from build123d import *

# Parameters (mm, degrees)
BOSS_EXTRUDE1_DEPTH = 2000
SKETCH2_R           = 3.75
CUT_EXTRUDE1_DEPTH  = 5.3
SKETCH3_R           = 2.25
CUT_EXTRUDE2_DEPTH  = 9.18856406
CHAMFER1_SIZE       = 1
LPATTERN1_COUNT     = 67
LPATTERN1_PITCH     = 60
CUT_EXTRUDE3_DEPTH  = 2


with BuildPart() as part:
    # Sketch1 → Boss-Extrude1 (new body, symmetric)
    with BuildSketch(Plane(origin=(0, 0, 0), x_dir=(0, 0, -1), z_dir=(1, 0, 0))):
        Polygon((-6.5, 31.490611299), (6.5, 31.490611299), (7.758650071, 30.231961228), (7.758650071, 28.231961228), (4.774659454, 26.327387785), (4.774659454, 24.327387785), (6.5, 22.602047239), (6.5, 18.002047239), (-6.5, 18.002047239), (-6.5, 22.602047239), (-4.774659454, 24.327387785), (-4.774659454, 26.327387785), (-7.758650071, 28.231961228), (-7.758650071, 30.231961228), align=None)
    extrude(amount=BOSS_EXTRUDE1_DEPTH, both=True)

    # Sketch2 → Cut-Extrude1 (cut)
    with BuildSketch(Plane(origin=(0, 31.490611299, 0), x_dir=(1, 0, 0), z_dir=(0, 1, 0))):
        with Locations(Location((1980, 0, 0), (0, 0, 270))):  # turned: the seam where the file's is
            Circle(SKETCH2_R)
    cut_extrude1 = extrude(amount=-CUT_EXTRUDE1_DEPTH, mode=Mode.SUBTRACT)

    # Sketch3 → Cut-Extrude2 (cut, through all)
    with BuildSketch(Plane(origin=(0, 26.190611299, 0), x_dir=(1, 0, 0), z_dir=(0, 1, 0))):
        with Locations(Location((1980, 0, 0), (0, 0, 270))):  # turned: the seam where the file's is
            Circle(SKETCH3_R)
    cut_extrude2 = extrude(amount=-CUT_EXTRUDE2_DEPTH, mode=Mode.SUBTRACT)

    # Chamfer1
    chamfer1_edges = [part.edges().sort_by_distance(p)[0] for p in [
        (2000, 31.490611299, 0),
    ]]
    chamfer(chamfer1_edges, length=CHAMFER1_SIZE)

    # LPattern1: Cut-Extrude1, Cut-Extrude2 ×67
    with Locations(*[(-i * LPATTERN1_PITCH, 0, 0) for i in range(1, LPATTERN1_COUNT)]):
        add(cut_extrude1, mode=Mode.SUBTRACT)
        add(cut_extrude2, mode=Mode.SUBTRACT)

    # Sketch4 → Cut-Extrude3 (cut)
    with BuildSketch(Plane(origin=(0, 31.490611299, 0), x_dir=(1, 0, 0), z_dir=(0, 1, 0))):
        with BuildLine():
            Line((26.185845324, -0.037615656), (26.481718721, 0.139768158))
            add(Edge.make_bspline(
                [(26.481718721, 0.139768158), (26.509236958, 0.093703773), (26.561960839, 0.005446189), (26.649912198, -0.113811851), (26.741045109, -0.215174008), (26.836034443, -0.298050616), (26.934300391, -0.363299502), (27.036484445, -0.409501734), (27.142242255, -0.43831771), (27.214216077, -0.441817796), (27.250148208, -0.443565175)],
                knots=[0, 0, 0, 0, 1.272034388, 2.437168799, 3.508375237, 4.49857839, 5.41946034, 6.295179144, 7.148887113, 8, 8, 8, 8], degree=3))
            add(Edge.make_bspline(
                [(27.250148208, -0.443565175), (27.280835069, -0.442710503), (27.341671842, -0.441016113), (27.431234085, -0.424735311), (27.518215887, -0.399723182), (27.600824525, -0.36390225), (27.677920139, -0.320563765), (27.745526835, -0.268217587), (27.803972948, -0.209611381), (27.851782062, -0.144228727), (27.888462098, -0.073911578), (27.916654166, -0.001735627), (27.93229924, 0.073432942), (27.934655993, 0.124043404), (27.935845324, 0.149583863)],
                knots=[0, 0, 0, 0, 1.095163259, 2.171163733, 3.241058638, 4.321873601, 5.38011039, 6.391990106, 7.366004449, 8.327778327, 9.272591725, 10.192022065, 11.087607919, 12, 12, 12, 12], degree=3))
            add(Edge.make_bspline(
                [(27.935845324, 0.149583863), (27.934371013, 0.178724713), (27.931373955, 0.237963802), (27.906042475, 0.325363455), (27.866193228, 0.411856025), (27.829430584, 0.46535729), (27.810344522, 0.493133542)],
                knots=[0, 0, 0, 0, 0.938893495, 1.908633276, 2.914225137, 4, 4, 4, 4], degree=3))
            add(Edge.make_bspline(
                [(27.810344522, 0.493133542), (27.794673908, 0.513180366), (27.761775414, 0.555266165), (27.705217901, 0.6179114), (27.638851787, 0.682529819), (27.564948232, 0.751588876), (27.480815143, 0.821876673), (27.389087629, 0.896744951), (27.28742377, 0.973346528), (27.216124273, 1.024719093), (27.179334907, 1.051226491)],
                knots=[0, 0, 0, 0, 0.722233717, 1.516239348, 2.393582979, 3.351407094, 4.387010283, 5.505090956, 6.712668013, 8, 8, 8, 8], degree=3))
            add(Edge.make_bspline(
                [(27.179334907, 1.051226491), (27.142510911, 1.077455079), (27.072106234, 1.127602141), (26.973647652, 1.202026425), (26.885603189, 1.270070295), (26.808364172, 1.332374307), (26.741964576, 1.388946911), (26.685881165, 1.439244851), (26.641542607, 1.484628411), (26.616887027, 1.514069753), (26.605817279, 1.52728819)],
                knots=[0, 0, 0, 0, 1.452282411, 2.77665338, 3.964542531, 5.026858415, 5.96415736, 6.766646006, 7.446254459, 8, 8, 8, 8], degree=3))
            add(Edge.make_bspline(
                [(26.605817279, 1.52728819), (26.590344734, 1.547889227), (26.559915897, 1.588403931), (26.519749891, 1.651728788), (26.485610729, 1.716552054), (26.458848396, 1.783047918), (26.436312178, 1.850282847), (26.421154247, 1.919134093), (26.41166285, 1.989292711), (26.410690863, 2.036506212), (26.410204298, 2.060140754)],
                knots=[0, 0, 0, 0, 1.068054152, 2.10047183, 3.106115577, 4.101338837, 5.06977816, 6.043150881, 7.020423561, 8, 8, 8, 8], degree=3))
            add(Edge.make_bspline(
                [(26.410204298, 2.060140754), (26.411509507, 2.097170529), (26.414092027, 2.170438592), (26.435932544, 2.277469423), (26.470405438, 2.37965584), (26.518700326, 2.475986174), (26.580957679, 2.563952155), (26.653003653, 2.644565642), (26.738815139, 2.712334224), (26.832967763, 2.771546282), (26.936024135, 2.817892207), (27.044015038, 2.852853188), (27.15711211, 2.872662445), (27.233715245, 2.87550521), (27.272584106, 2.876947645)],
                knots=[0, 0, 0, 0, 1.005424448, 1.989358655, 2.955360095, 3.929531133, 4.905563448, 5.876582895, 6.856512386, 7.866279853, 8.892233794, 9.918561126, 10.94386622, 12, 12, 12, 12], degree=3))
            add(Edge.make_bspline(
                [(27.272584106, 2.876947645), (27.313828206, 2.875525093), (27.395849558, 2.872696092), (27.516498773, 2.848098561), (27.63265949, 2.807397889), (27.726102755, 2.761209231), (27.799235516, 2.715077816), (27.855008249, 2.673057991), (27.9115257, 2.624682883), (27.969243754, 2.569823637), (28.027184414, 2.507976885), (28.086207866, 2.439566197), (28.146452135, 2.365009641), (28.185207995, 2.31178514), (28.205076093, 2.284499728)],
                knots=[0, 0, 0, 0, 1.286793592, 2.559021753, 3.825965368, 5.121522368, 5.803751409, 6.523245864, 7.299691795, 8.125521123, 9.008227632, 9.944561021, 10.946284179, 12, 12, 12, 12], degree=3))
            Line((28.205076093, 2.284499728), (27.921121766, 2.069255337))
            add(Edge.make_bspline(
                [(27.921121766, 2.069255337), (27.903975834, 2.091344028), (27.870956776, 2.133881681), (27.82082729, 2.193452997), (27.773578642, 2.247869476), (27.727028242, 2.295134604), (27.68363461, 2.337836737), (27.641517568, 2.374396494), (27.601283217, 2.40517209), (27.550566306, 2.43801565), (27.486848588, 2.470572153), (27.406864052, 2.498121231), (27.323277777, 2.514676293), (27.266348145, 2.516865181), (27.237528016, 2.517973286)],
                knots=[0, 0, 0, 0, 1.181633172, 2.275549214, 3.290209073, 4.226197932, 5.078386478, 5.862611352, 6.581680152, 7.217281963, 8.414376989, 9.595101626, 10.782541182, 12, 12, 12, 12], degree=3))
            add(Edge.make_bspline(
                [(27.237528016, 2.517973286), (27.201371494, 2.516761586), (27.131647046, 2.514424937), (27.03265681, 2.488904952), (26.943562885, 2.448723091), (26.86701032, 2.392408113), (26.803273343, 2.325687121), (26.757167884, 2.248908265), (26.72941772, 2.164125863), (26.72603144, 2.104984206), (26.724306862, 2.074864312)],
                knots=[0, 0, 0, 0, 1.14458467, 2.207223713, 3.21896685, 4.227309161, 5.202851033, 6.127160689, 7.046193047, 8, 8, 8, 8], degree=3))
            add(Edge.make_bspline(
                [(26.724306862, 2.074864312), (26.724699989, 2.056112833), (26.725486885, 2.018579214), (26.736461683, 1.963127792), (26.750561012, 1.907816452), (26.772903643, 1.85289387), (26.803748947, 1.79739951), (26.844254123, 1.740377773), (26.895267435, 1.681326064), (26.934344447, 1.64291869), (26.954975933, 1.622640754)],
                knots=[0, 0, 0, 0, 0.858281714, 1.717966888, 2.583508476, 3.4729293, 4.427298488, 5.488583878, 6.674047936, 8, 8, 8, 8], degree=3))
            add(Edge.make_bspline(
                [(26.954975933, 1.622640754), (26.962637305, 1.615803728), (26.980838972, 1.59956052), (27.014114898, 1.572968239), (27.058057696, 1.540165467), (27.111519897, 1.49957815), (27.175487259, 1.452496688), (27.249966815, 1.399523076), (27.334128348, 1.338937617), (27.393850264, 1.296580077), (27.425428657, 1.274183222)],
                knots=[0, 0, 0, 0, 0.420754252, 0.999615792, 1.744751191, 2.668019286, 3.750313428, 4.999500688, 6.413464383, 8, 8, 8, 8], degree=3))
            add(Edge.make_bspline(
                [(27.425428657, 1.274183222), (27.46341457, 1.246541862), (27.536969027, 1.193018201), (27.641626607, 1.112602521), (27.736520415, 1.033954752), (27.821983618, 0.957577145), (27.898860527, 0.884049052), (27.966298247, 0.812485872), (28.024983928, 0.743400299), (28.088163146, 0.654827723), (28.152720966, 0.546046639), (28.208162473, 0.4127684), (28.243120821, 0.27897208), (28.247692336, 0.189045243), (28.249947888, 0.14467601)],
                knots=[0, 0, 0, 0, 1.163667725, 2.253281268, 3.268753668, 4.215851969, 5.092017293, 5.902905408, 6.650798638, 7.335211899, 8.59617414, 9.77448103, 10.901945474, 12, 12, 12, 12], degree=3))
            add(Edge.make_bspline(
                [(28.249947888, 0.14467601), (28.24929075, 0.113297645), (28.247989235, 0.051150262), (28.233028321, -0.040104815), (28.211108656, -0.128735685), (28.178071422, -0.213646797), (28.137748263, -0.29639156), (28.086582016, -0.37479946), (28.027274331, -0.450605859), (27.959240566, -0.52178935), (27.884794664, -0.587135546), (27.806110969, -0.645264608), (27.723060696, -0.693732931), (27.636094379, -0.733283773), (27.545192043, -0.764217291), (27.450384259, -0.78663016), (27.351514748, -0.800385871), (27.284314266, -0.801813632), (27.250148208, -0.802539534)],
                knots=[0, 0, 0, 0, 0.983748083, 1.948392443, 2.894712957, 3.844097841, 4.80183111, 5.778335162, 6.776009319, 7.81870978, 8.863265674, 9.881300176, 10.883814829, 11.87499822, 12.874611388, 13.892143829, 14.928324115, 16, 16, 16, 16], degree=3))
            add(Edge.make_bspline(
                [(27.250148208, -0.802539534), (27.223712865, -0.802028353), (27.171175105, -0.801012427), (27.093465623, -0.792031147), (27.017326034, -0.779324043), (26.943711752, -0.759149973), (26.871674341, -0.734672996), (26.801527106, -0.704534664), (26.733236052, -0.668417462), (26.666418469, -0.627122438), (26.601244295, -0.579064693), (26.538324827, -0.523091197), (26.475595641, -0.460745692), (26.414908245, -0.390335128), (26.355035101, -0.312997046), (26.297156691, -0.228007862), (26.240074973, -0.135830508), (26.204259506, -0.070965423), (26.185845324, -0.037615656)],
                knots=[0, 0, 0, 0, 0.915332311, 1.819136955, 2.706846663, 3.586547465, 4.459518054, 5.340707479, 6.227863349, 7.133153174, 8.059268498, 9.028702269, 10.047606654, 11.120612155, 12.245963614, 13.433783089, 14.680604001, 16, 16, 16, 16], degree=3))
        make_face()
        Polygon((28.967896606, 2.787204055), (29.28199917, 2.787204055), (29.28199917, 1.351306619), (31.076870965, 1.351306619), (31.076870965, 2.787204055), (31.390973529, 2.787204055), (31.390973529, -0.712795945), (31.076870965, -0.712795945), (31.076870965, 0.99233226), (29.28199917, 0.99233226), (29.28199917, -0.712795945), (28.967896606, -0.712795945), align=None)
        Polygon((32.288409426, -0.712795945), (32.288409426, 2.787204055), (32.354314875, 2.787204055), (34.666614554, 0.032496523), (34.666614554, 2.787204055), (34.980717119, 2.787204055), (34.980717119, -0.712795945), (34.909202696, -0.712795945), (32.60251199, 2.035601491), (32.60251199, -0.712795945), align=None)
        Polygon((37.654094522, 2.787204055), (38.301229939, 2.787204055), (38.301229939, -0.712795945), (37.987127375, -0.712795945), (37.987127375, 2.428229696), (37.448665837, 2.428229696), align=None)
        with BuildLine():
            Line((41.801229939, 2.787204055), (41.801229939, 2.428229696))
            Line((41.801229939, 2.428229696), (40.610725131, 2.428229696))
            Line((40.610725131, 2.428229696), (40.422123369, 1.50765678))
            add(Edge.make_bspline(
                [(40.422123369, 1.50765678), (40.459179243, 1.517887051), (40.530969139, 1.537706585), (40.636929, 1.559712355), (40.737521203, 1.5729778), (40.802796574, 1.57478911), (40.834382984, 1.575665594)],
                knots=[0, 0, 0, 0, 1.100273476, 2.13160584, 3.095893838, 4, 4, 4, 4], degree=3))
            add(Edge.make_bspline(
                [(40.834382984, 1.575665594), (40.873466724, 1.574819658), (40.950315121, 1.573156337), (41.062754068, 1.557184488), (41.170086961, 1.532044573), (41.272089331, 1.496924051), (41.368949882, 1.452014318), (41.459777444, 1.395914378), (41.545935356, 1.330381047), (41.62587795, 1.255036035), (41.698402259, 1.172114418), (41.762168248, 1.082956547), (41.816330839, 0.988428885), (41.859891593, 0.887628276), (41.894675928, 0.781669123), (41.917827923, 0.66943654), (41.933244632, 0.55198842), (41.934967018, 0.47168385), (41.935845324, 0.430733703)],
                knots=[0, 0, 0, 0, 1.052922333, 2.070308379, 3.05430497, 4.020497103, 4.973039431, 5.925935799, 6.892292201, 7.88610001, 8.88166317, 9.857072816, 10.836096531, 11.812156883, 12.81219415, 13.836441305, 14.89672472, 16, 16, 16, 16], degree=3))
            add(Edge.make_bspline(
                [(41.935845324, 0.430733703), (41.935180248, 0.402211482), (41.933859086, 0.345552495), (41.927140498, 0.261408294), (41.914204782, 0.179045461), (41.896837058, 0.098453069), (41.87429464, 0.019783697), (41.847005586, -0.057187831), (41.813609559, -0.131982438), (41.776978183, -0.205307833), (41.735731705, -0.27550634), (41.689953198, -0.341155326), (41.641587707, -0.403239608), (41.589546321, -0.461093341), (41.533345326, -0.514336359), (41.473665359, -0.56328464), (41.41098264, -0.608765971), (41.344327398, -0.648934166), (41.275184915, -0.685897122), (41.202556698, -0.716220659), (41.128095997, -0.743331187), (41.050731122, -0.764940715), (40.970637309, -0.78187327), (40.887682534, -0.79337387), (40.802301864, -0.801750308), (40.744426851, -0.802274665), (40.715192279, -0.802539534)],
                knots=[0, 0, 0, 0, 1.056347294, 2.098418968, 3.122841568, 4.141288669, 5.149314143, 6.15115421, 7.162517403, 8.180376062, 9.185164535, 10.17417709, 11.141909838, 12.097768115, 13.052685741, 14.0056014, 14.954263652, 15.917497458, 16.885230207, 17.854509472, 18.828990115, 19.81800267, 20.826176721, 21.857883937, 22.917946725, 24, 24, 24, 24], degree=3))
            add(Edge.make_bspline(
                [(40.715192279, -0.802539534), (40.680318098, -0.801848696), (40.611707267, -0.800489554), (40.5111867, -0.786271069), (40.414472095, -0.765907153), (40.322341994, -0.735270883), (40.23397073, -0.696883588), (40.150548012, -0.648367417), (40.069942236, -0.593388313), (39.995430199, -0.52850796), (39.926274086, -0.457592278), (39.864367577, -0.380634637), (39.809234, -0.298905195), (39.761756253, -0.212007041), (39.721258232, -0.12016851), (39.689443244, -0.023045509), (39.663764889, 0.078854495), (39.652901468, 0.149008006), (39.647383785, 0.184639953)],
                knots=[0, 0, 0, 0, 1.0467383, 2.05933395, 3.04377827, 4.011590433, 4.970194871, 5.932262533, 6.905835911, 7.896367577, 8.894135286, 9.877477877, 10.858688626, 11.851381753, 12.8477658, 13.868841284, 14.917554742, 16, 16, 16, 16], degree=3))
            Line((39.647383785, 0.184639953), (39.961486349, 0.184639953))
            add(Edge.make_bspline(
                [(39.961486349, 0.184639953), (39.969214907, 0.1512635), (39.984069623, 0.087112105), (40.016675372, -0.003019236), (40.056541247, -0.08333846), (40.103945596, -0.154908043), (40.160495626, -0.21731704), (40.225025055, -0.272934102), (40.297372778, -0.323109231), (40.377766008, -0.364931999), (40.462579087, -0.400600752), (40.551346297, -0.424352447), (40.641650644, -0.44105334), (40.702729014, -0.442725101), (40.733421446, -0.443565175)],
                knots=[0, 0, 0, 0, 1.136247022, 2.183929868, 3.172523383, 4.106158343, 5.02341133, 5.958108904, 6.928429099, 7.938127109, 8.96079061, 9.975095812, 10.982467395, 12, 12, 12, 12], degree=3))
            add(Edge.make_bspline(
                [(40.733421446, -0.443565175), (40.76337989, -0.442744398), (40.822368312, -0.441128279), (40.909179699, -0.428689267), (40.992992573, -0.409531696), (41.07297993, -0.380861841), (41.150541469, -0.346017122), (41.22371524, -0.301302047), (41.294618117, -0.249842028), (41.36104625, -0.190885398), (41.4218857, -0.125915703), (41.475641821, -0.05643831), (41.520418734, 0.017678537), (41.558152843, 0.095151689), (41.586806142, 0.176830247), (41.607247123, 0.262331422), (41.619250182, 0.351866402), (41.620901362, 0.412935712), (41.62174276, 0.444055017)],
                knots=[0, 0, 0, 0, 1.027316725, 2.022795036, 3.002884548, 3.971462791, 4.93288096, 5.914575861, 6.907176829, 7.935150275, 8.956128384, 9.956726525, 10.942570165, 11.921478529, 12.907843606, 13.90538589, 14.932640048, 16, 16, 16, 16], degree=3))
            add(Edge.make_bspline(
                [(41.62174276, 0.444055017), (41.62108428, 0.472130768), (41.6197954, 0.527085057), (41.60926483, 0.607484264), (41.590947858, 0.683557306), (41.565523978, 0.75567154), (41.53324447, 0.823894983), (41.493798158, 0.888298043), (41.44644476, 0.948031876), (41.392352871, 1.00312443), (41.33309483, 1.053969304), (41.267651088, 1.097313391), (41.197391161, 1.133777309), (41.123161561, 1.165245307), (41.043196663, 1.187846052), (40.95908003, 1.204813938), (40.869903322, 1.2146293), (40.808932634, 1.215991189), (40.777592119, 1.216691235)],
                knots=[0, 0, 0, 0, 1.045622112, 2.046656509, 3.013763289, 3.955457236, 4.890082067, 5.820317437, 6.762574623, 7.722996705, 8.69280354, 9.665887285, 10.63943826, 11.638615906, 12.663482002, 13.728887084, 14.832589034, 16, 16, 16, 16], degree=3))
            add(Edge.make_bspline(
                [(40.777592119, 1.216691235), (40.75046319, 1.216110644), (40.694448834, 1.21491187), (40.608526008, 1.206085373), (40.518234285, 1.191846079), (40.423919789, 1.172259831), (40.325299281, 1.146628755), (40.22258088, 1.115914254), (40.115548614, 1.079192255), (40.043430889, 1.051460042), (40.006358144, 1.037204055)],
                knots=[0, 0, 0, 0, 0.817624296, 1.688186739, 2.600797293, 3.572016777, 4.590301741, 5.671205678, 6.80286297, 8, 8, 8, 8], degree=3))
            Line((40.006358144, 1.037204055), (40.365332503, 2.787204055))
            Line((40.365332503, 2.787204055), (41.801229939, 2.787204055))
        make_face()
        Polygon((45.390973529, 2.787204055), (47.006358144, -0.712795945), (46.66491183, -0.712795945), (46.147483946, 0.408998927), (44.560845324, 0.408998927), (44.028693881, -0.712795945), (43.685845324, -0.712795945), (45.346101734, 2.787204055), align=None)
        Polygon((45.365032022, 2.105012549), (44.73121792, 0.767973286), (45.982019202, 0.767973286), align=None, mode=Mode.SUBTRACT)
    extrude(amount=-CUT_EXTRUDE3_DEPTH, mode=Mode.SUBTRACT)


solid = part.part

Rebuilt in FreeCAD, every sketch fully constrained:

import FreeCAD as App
import Part
import Sketcher
from FreeCAD import Vector
Q = App.Units.Quantity


def edges_at(feature, points):
    """Names of the edges that pass closest to the given points."""
    edges = feature.Shape.Edges
    near = lambda p: min(range(len(edges)), key=lambda i: edges[i].distToShape(Part.Vertex(*p))[0])
    return sorted({f"Edge{near(p) + 1}" for p in points})

doc = App.newDocument("Part")
body = doc.addObject("PartDesign::Body", "Body")

sketch1 = body.newObject("Sketcher::SketchObject", "Sketch")
sketch1.AttachmentSupport = (doc.getObject("YZ_Plane"), [""])
sketch1.MapMode = "FlatFace"
sketch1.addGeometry([
    Part.LineSegment(Vector(31.5, -6.5, 0), Vector(31.5, 6.5, 0)),
    Part.LineSegment(Vector(31.5, 6.5, 0), Vector(30.2, 7.8, 0)),
    Part.LineSegment(Vector(30.2, 7.8, 0), Vector(28.2, 7.8, 0)),
    Part.LineSegment(Vector(28.2, 7.8, 0), Vector(26.3, 4.8, 0)),
    Part.LineSegment(Vector(26.3, 4.8, 0), Vector(24.3, 4.8, 0)),
    Part.LineSegment(Vector(24.3, 4.8, 0), Vector(22.6, 6.5, 0)),
    Part.LineSegment(Vector(22.6, 6.5, 0), Vector(18, 6.5, 0)),
    Part.LineSegment(Vector(18, 6.5, 0), Vector(18, -6.5, 0)),
    Part.LineSegment(Vector(18, -6.5, 0), Vector(22.6, -6.5, 0)),
    Part.LineSegment(Vector(22.6, -6.5, 0), Vector(24.3, -4.8, 0)),
    Part.LineSegment(Vector(24.3, -4.8, 0), Vector(26.3, -4.8, 0)),
    Part.LineSegment(Vector(26.3, -4.8, 0), Vector(28.2, -7.8, 0)),
    Part.LineSegment(Vector(28.2, -7.8, 0), Vector(30.2, -7.8, 0)),
    Part.LineSegment(Vector(30.2, -7.8, 0), Vector(31.5, -6.5, 0)),
], False)
sketch1.addConstraint([
    Sketcher.Constraint("Coincident", 0, 2, 1, 1),
    Sketcher.Constraint("Coincident", 1, 2, 2, 1),
    Sketcher.Constraint("Coincident", 2, 2, 3, 1),
    Sketcher.Constraint("Coincident", 3, 2, 4, 1),
    Sketcher.Constraint("Coincident", 4, 2, 5, 1),
    Sketcher.Constraint("Coincident", 5, 2, 6, 1),
    Sketcher.Constraint("Coincident", 6, 2, 7, 1),
    Sketcher.Constraint("Coincident", 7, 2, 8, 1),
    Sketcher.Constraint("Coincident", 8, 2, 9, 1),
    Sketcher.Constraint("Coincident", 9, 2, 10, 1),
    Sketcher.Constraint("Coincident", 10, 2, 11, 1),
    Sketcher.Constraint("Coincident", 11, 2, 12, 1),
    Sketcher.Constraint("Coincident", 12, 2, 13, 1),
    Sketcher.Constraint("Coincident", 13, 2, 0, 1),
    Sketcher.Constraint("Vertical", 0),
    Sketcher.Constraint("Horizontal", 2),
    Sketcher.Constraint("Horizontal", 4),
    Sketcher.Constraint("Horizontal", 6),
    Sketcher.Constraint("Vertical", 7),
    Sketcher.Constraint("Horizontal", 8),
    Sketcher.Constraint("Horizontal", 10),
    Sketcher.Constraint("Horizontal", 12),
    Sketcher.Constraint("Symmetric", 5, 2, 8, 2, -1),
    Sketcher.Constraint("Symmetric", 4, 2, 9, 2, -1),
    Sketcher.Constraint("Symmetric", 2, 2, 11, 2, -1),
    Sketcher.Constraint("Parallel", 1, 5),
    Sketcher.Constraint("Perpendicular", 5, 9),
    Sketcher.Constraint("Parallel", 9, 13),
    Sketcher.Constraint("Horizontal", 0, 2, 5, 2),
    Sketcher.Constraint("Horizontal", 8, 2, 13, 2),
    Sketcher.Constraint("Vertical", 3, 2, 10, 2),
    Sketcher.Constraint("Equal", 2, 4),
    Sketcher.Constraint("DistanceX", 2, 2, 2, 1, Q("2 mm")),
    Sketcher.Constraint("DistanceY", 0, 1, 0, 2, Q("13 mm")),
    Sketcher.Constraint("DistanceX", 6, 2, 6, 1, Q("4.6 mm")),
    Sketcher.Constraint("Distance", 1, Q("1.78 mm")),
    Sketcher.Constraint("Distance", 3, Q("3.54 mm")),
    Sketcher.Constraint("Distance", 5, Q("2.44 mm")),
    Sketcher.Constraint("DistanceX", -1, 1, 0, 2, Q("31.490611 mm")),
])
pad1 = body.newObject("PartDesign::Pad", "Pad")
pad1.Profile = sketch1
pad1.Length = 4000
pad1.Midplane = True

sketch2 = body.newObject("Sketcher::SketchObject", "Sketch001")
sketch2.AttachmentSupport = (doc.getObject("XZ_Plane"), [""])
sketch2.MapMode = "FlatFace"
sketch2.AttachmentOffset = App.Placement(Vector(0, 0, -31.490611), App.Rotation())
sketch2.addGeometry(Part.Circle(Vector(1980, 0, 0), Vector(0, 0, 1), 3.8), False)
sketch2.addConstraint([
    Sketcher.Constraint("PointOnObject", 0, 3, -1),
    Sketcher.Constraint("Diameter", 0, Q("7.5 mm")),
    Sketcher.Constraint("DistanceX", -1, 1, 0, 3, Q("1980 mm")),
])
pocket1 = body.newObject("PartDesign::Pocket", "Pocket")
pocket1.Profile = sketch2
pocket1.Length = 5.3
pocket1.Reversed = True

sketch3 = body.newObject("Sketcher::SketchObject", "Sketch002")
sketch3.AttachmentSupport = (doc.getObject("XZ_Plane"), [""])
sketch3.MapMode = "FlatFace"
sketch3.AttachmentOffset = App.Placement(Vector(0, 0, -26.190611), App.Rotation())
sketch3.addGeometry(Part.Circle(Vector(1980, 0, 0), Vector(0, 0, 1), 2.2), False)
sketch3.addConstraint([
    Sketcher.Constraint("PointOnObject", 0, 3, -1),
    Sketcher.Constraint("Diameter", 0, Q("4.5 mm")),
    Sketcher.Constraint("DistanceX", -1, 1, 0, 3, Q("1980 mm")),
])
pocket2 = body.newObject("PartDesign::Pocket", "Pocket001")
pocket2.Profile = sketch3
pocket2.Type = "ThroughAll"
pocket2.Reversed = True
doc.recompute()

chamfer = body.newObject("PartDesign::Chamfer", "Chamfer")
chamfer.Base = (pocket2, edges_at(pocket2, [(2000, 31.491, 0)]))
chamfer.Size = 1
doc.recompute()

linearpattern = body.newObject("PartDesign::LinearPattern", "LinearPattern")
linearpattern.Originals = [pocket1, pocket2]
linearpattern.Direction = (doc.getObject("X_Axis"), [""])
linearpattern.Mode = "offset"
linearpattern.Offset = 60
linearpattern.Occurrences = 67
linearpattern.Reversed = True
body.Tip = linearpattern

sketch4 = body.newObject("Sketcher::SketchObject", "Sketch003")
sketch4.AttachmentSupport = (doc.getObject("XZ_Plane"), [""])
sketch4.MapMode = "FlatFace"
sketch4.AttachmentOffset = App.Placement(Vector(0, 0, -31.490611), App.Rotation())
sketch4.addGeometry([
    Part.LineSegment(Vector(26.481719, -0.139768, 0), Vector(26.185845, 0.037616, 0)),
    Part.BSplineCurve([Vector(27.250148, 0.80254, 0), Vector(27.223713, 0.802028, 0), Vector(27.171175, 0.801012, 0), Vector(27.093466, 0.792031, 0), Vector(27.017326, 0.779324, 0), Vector(26.943712, 0.75915, 0), Vector(26.871674, 0.734673, 0), Vector(26.801527, 0.704535, 0), Vector(26.733236, 0.668417, 0), Vector(26.666418, 0.627122, 0), Vector(26.601244, 0.579065, 0), Vector(26.538325, 0.523091, 0), Vector(26.475596, 0.460746, 0), Vector(26.414908, 0.390335, 0), Vector(26.355035, 0.312997, 0), Vector(26.297157, 0.228008, 0), Vector(26.240075, 0.135831, 0), Vector(26.20426, 0.070965, 0), Vector(26.185845, 0.037616, 0)], [4, 1, 1, 1, 1, 1, 1, 1, 1, 1, 1, 1, 1, 1, 1, 1, 4], [0, 0.915332311, 1.819136955, 2.706846663, 3.586547465, 4.459518054, 5.340707479, 6.227863349, 7.133153174, 8.059268498, 9.028702269, 10.047606654, 11.120612155, 12.245963614, 13.433783089, 14.680604001, 16], False, 3, [1, 1, 1, 1, 1, 1, 1, 1, 1, 1, 1, 1, 1, 1, 1, 1, 1, 1, 1], False),
    Part.BSplineCurve([Vector(28.249948, -0.144676, 0), Vector(28.249291, -0.113298, 0), Vector(28.247989, -0.05115, 0), Vector(28.233028, 0.040105, 0), Vector(28.211109, 0.128736, 0), Vector(28.178071, 0.213647, 0), Vector(28.137748, 0.296392, 0), Vector(28.086582, 0.374799, 0), Vector(28.027274, 0.450606, 0), Vector(27.959241, 0.521789, 0), Vector(27.884795, 0.587136, 0), Vector(27.806111, 0.645265, 0), Vector(27.723061, 0.693733, 0), Vector(27.636094, 0.733284, 0), Vector(27.545192, 0.764217, 0), Vector(27.450384, 0.78663, 0), Vector(27.351515, 0.800386, 0), Vector(27.284314, 0.801814, 0), Vector(27.250148, 0.80254, 0)], [4, 1, 1, 1, 1, 1, 1, 1, 1, 1, 1, 1, 1, 1, 1, 1, 4], [0, 0.983748083, 1.948392443, 2.894712957, 3.844097841, 4.80183111, 5.778335162, 6.776009319, 7.81870978, 8.863265674, 9.881300176, 10.883814829, 11.87499822, 12.874611388, 13.892143829, 14.928324115, 16], False, 3, [1, 1, 1, 1, 1, 1, 1, 1, 1, 1, 1, 1, 1, 1, 1, 1, 1, 1, 1], False),
    Part.BSplineCurve([Vector(27.425429, -1.274183, 0), Vector(27.463415, -1.246542, 0), Vector(27.536969, -1.193018, 0), Vector(27.641627, -1.112603, 0), Vector(27.73652, -1.033955, 0), Vector(27.821984, -0.957577, 0), Vector(27.898861, -0.884049, 0), Vector(27.966298, -0.812486, 0), Vector(28.024984, -0.7434, 0), Vector(28.088163, -0.654828, 0), Vector(28.152721, -0.546047, 0), Vector(28.208162, -0.412768, 0), Vector(28.243121, -0.278972, 0), Vector(28.247692, -0.189045, 0), Vector(28.249948, -0.144676, 0)], [4, 1, 1, 1, 1, 1, 1, 1, 1, 1, 1, 1, 4], [0, 1.163667725, 2.253281268, 3.268753668, 4.215851969, 5.092017293, 5.902905408, 6.650798638, 7.335211899, 8.59617414, 9.77448103, 10.901945474, 12], False, 3, [1, 1, 1, 1, 1, 1, 1, 1, 1, 1, 1, 1, 1, 1, 1], False),
    Part.BSplineCurve([Vector(26.954976, -1.622641, 0), Vector(26.962637, -1.615804, 0), Vector(26.980839, -1.599561, 0), Vector(27.014115, -1.572968, 0), Vector(27.058058, -1.540165, 0), Vector(27.11152, -1.499578, 0), Vector(27.175487, -1.452497, 0), Vector(27.249967, -1.399523, 0), Vector(27.334128, -1.338938, 0), Vector(27.39385, -1.29658, 0), Vector(27.425429, -1.274183, 0)], [4, 1, 1, 1, 1, 1, 1, 1, 4], [0, 0.420754252, 0.999615792, 1.744751191, 2.668019286, 3.750313428, 4.999500688, 6.413464383, 8], False, 3, [1, 1, 1, 1, 1, 1, 1, 1, 1, 1, 1], False),
    Part.BSplineCurve([Vector(26.724307, -2.074864, 0), Vector(26.7247, -2.056113, 0), Vector(26.725487, -2.018579, 0), Vector(26.736462, -1.963128, 0), Vector(26.750561, -1.907816, 0), Vector(26.772904, -1.852894, 0), Vector(26.803749, -1.7974, 0), Vector(26.844254, -1.740378, 0), Vector(26.895267, -1.681326, 0), Vector(26.934344, -1.642919, 0), Vector(26.954976, -1.622641, 0)], [4, 1, 1, 1, 1, 1, 1, 1, 4], [0, 0.858281714, 1.717966888, 2.583508476, 3.4729293, 4.427298488, 5.488583878, 6.674047936, 8], False, 3, [1, 1, 1, 1, 1, 1, 1, 1, 1, 1, 1], False),
    Part.BSplineCurve([Vector(27.237528, -2.517973, 0), Vector(27.201371, -2.516762, 0), Vector(27.131647, -2.514425, 0), Vector(27.032657, -2.488905, 0), Vector(26.943563, -2.448723, 0), Vector(26.86701, -2.392408, 0), Vector(26.803273, -2.325687, 0), Vector(26.757168, -2.248908, 0), Vector(26.729418, -2.164126, 0), Vector(26.726031, -2.104984, 0), Vector(26.724307, -2.074864, 0)], [4, 1, 1, 1, 1, 1, 1, 1, 4], [0, 1.14458467, 2.207223713, 3.21896685, 4.227309161, 5.202851033, 6.127160689, 7.046193047, 8], False, 3, [1, 1, 1, 1, 1, 1, 1, 1, 1, 1, 1], False),
    Part.BSplineCurve([Vector(27.921122, -2.069255, 0), Vector(27.903976, -2.091344, 0), Vector(27.870957, -2.133882, 0), Vector(27.820827, -2.193453, 0), Vector(27.773579, -2.247869, 0), Vector(27.727028, -2.295135, 0), Vector(27.683635, -2.337837, 0), Vector(27.641518, -2.374396, 0), Vector(27.601283, -2.405172, 0), Vector(27.550566, -2.438016, 0), Vector(27.486849, -2.470572, 0), Vector(27.406864, -2.498121, 0), Vector(27.323278, -2.514676, 0), Vector(27.266348, -2.516865, 0), Vector(27.237528, -2.517973, 0)], [4, 1, 1, 1, 1, 1, 1, 1, 1, 1, 1, 1, 4], [0, 1.181633172, 2.275549214, 3.290209073, 4.226197932, 5.078386478, 5.862611352, 6.581680152, 7.217281963, 8.414376989, 9.595101626, 10.782541182, 12], False, 3, [1, 1, 1, 1, 1, 1, 1, 1, 1, 1, 1, 1, 1, 1, 1], False),
    Part.LineSegment(Vector(27.921122, -2.069255, 0), Vector(28.205076, -2.2845, 0)),
    Part.BSplineCurve([Vector(27.272584, -2.876948, 0), Vector(27.313828, -2.875525, 0), Vector(27.39585, -2.872696, 0), Vector(27.516499, -2.848099, 0), Vector(27.632659, -2.807398, 0), Vector(27.726103, -2.761209, 0), Vector(27.799236, -2.715078, 0), Vector(27.855008, -2.673058, 0), Vector(27.911526, -2.624683, 0), Vector(27.969244, -2.569824, 0), Vector(28.027184, -2.507977, 0), Vector(28.086208, -2.439566, 0), Vector(28.146452, -2.36501, 0), Vector(28.185208, -2.311785, 0), Vector(28.205076, -2.2845, 0)], [4, 1, 1, 1, 1, 1, 1, 1, 1, 1, 1, 1, 4], [0, 1.286793592, 2.559021753, 3.825965368, 5.121522368, 5.803751409, 6.523245864, 7.299691795, 8.125521123, 9.008227632, 9.944561021, 10.946284179, 12], False, 3, [1, 1, 1, 1, 1, 1, 1, 1, 1, 1, 1, 1, 1, 1, 1], False),
    Part.BSplineCurve([Vector(26.410204, -2.060141, 0), Vector(26.41151, -2.097171, 0), Vector(26.414092, -2.170439, 0), Vector(26.435933, -2.277469, 0), Vector(26.470405, -2.379656, 0), Vector(26.5187, -2.475986, 0), Vector(26.580958, -2.563952, 0), Vector(26.653004, -2.644566, 0), Vector(26.738815, -2.712334, 0), Vector(26.832968, -2.771546, 0), Vector(26.936024, -2.817892, 0), Vector(27.044015, -2.852853, 0), Vector(27.157112, -2.872662, 0), Vector(27.233715, -2.875505, 0), Vector(27.272584, -2.876948, 0)], [4, 1, 1, 1, 1, 1, 1, 1, 1, 1, 1, 1, 4], [0, 1.005424448, 1.989358655, 2.955360095, 3.929531133, 4.905563448, 5.876582895, 6.856512386, 7.866279853, 8.892233794, 9.918561126, 10.94386622, 12], False, 3, [1, 1, 1, 1, 1, 1, 1, 1, 1, 1, 1, 1, 1, 1, 1], False),
    Part.BSplineCurve([Vector(26.605817, -1.527288, 0), Vector(26.590345, -1.547889, 0), Vector(26.559916, -1.588404, 0), Vector(26.51975, -1.651729, 0), Vector(26.485611, -1.716552, 0), Vector(26.458848, -1.783048, 0), Vector(26.436312, -1.850283, 0), Vector(26.421154, -1.919134, 0), Vector(26.411663, -1.989293, 0), Vector(26.410691, -2.036506, 0), Vector(26.410204, -2.060141, 0)], [4, 1, 1, 1, 1, 1, 1, 1, 4], [0, 1.068054152, 2.10047183, 3.106115577, 4.101338837, 5.06977816, 6.043150881, 7.020423561, 8], False, 3, [1, 1, 1, 1, 1, 1, 1, 1, 1, 1, 1], False),
    Part.BSplineCurve([Vector(27.179335, -1.051226, 0), Vector(27.142511, -1.077455, 0), Vector(27.072106, -1.127602, 0), Vector(26.973648, -1.202026, 0), Vector(26.885603, -1.27007, 0), Vector(26.808364, -1.332374, 0), Vector(26.741965, -1.388947, 0), Vector(26.685881, -1.439245, 0), Vector(26.641543, -1.484628, 0), Vector(26.616887, -1.51407, 0), Vector(26.605817, -1.527288, 0)], [4, 1, 1, 1, 1, 1, 1, 1, 4], [0, 1.452282411, 2.77665338, 3.964542531, 5.026858415, 5.96415736, 6.766646006, 7.446254459, 8], False, 3, [1, 1, 1, 1, 1, 1, 1, 1, 1, 1, 1], False),
    Part.BSplineCurve([Vector(27.810345, -0.493134, 0), Vector(27.794674, -0.51318, 0), Vector(27.761775, -0.555266, 0), Vector(27.705218, -0.617911, 0), Vector(27.638852, -0.68253, 0), Vector(27.564948, -0.751589, 0), Vector(27.480815, -0.821877, 0), Vector(27.389088, -0.896745, 0), Vector(27.287424, -0.973347, 0), Vector(27.216124, -1.024719, 0), Vector(27.179335, -1.051226, 0)], [4, 1, 1, 1, 1, 1, 1, 1, 4], [0, 0.722233717, 1.516239348, 2.393582979, 3.351407094, 4.387010283, 5.505090956, 6.712668013, 8], False, 3, [1, 1, 1, 1, 1, 1, 1, 1, 1, 1, 1], False),
    Part.BSplineCurve([Vector(27.935845, -0.149584, 0), Vector(27.934371, -0.178725, 0), Vector(27.931374, -0.237964, 0), Vector(27.906042, -0.325363, 0), Vector(27.866193, -0.411856, 0), Vector(27.829431, -0.465357, 0), Vector(27.810345, -0.493134, 0)], [4, 1, 1, 1, 4], [0, 0.938893495, 1.908633276, 2.914225137, 4], False, 3, [1, 1, 1, 1, 1, 1, 1], False),
    Part.BSplineCurve([Vector(27.250148, 0.443565, 0), Vector(27.280835, 0.442711, 0), Vector(27.341672, 0.441016, 0), Vector(27.431234, 0.424735, 0), Vector(27.518216, 0.399723, 0), Vector(27.600825, 0.363902, 0), Vector(27.67792, 0.320564, 0), Vector(27.745527, 0.268218, 0), Vector(27.803973, 0.209611, 0), Vector(27.851782, 0.144229, 0), Vector(27.888462, 0.073912, 0), Vector(27.916654, 0.001736, 0), Vector(27.932299, -0.073433, 0), Vector(27.934656, -0.124043, 0), Vector(27.935845, -0.149584, 0)], [4, 1, 1, 1, 1, 1, 1, 1, 1, 1, 1, 1, 4], [0, 1.095163259, 2.171163733, 3.241058638, 4.321873601, 5.38011039, 6.391990106, 7.366004449, 8.327778327, 9.272591725, 10.192022065, 11.087607919, 12], False, 3, [1, 1, 1, 1, 1, 1, 1, 1, 1, 1, 1, 1, 1, 1, 1], False),
    Part.BSplineCurve([Vector(26.481719, -0.139768, 0), Vector(26.509237, -0.093704, 0), Vector(26.561961, -0.005446, 0), Vector(26.649912, 0.113812, 0), Vector(26.741045, 0.215174, 0), Vector(26.836034, 0.298051, 0), Vector(26.9343, 0.3633, 0), Vector(27.036484, 0.409502, 0), Vector(27.142242, 0.438318, 0), Vector(27.214216, 0.441818, 0), Vector(27.250148, 0.443565, 0)], [4, 1, 1, 1, 1, 1, 1, 1, 4], [0, 1.272034388, 2.437168799, 3.508375237, 4.49857839, 5.41946034, 6.295179144, 7.148887113, 8], False, 3, [1, 1, 1, 1, 1, 1, 1, 1, 1, 1, 1], False),
    Part.LineSegment(Vector(29.281999, -2.787204, 0), Vector(28.967897, -2.787204, 0)),
    Part.LineSegment(Vector(28.967897, -2.787204, 0), Vector(28.967897, 0.712796, 0)),
    Part.LineSegment(Vector(28.967897, 0.712796, 0), Vector(29.281999, 0.712796, 0)),
    Part.LineSegment(Vector(29.281999, 0.712796, 0), Vector(29.281999, -0.992332, 0)),
    Part.LineSegment(Vector(29.281999, -0.992332, 0), Vector(31.076871, -0.992332, 0)),
    Part.LineSegment(Vector(31.076871, -0.992332, 0), Vector(31.076871, 0.712796, 0)),
    Part.LineSegment(Vector(31.076871, 0.712796, 0), Vector(31.390974, 0.712796, 0)),
    Part.LineSegment(Vector(31.390974, 0.712796, 0), Vector(31.390974, -2.787204, 0)),
    Part.LineSegment(Vector(31.390974, -2.787204, 0), Vector(31.076871, -2.787204, 0)),
    Part.LineSegment(Vector(31.076871, -2.787204, 0), Vector(31.076871, -1.351307, 0)),
    Part.LineSegment(Vector(31.076871, -1.351307, 0), Vector(29.281999, -1.351307, 0)),
    Part.LineSegment(Vector(29.281999, -1.351307, 0), Vector(29.281999, -2.787204, 0)),
    Part.LineSegment(Vector(32.288409, -2.787204, 0), Vector(32.288409, 0.712796, 0)),
    Part.LineSegment(Vector(32.288409, 0.712796, 0), Vector(32.602512, 0.712796, 0)),
    Part.LineSegment(Vector(32.602512, 0.712796, 0), Vector(32.602512, -2.035601, 0)),
    Part.LineSegment(Vector(32.602512, -2.035601, 0), Vector(34.909203, 0.712796, 0)),
    Part.LineSegment(Vector(34.909203, 0.712796, 0), Vector(34.980717, 0.712796, 0)),
    Part.LineSegment(Vector(34.980717, 0.712796, 0), Vector(34.980717, -2.787204, 0)),
    Part.LineSegment(Vector(34.980717, -2.787204, 0), Vector(34.666615, -2.787204, 0)),
    Part.LineSegment(Vector(34.666615, -2.787204, 0), Vector(34.666615, -0.032497, 0)),
    Part.LineSegment(Vector(34.666615, -0.032497, 0), Vector(32.354315, -2.787204, 0)),
    Part.LineSegment(Vector(32.354315, -2.787204, 0), Vector(32.288409, -2.787204, 0)),
    Part.LineSegment(Vector(38.30123, -2.787204, 0), Vector(37.654095, -2.787204, 0)),
    Part.LineSegment(Vector(37.654095, -2.787204, 0), Vector(37.448666, -2.42823, 0)),
    Part.LineSegment(Vector(37.448666, -2.42823, 0), Vector(37.987127, -2.42823, 0)),
    Part.LineSegment(Vector(37.987127, -2.42823, 0), Vector(37.987127, 0.712796, 0)),
    Part.LineSegment(Vector(37.987127, 0.712796, 0), Vector(38.30123, 0.712796, 0)),
    Part.LineSegment(Vector(38.30123, 0.712796, 0), Vector(38.30123, -2.787204, 0)),
    Part.LineSegment(Vector(41.80123, -2.42823, 0), Vector(41.80123, -2.787204, 0)),
    Part.LineSegment(Vector(41.80123, -2.787204, 0), Vector(40.365333, -2.787204, 0)),
    Part.LineSegment(Vector(40.365333, -2.787204, 0), Vector(40.006358, -1.037204, 0)),
    Part.BSplineCurve([Vector(40.777592, -1.216691, 0), Vector(40.750463, -1.216111, 0), Vector(40.694449, -1.214912, 0), Vector(40.608526, -1.206085, 0), Vector(40.518234, -1.191846, 0), Vector(40.42392, -1.17226, 0), Vector(40.325299, -1.146629, 0), Vector(40.222581, -1.115914, 0), Vector(40.115549, -1.079192, 0), Vector(40.043431, -1.05146, 0), Vector(40.006358, -1.037204, 0)], [4, 1, 1, 1, 1, 1, 1, 1, 4], [0, 0.817624296, 1.688186739, 2.600797293, 3.572016777, 4.590301741, 5.671205678, 6.80286297, 8], False, 3, [1, 1, 1, 1, 1, 1, 1, 1, 1, 1, 1], False),
    Part.BSplineCurve([Vector(41.621743, -0.444055, 0), Vector(41.621084, -0.472131, 0), Vector(41.619795, -0.527085, 0), Vector(41.609265, -0.607484, 0), Vector(41.590948, -0.683557, 0), Vector(41.565524, -0.755672, 0), Vector(41.533244, -0.823895, 0), Vector(41.493798, -0.888298, 0), Vector(41.446445, -0.948032, 0), Vector(41.392353, -1.003124, 0), Vector(41.333095, -1.053969, 0), Vector(41.267651, -1.097313, 0), Vector(41.197391, -1.133777, 0), Vector(41.123162, -1.165245, 0), Vector(41.043197, -1.187846, 0), Vector(40.95908, -1.204814, 0), Vector(40.869903, -1.214629, 0), Vector(40.808933, -1.215991, 0), Vector(40.777592, -1.216691, 0)], [4, 1, 1, 1, 1, 1, 1, 1, 1, 1, 1, 1, 1, 1, 1, 1, 4], [0, 1.045622112, 2.046656509, 3.013763289, 3.955457236, 4.890082067, 5.820317437, 6.762574623, 7.722996705, 8.69280354, 9.665887285, 10.63943826, 11.638615906, 12.663482002, 13.728887084, 14.832589034, 16], False, 3, [1, 1, 1, 1, 1, 1, 1, 1, 1, 1, 1, 1, 1, 1, 1, 1, 1, 1, 1], False),
    Part.BSplineCurve([Vector(40.733421, 0.443565, 0), Vector(40.76338, 0.442744, 0), Vector(40.822368, 0.441128, 0), Vector(40.90918, 0.428689, 0), Vector(40.992993, 0.409532, 0), Vector(41.07298, 0.380862, 0), Vector(41.150541, 0.346017, 0), Vector(41.223715, 0.301302, 0), Vector(41.294618, 0.249842, 0), Vector(41.361046, 0.190885, 0), Vector(41.421886, 0.125916, 0), Vector(41.475642, 0.056438, 0), Vector(41.520419, -0.017679, 0), Vector(41.558153, -0.095152, 0), Vector(41.586806, -0.17683, 0), Vector(41.607247, -0.262331, 0), Vector(41.61925, -0.351866, 0), Vector(41.620901, -0.412936, 0), Vector(41.621743, -0.444055, 0)], [4, 1, 1, 1, 1, 1, 1, 1, 1, 1, 1, 1, 1, 1, 1, 1, 4], [0, 1.027316725, 2.022795036, 3.002884548, 3.971462791, 4.93288096, 5.914575861, 6.907176829, 7.935150275, 8.956128384, 9.956726525, 10.942570165, 11.921478529, 12.907843606, 13.90538589, 14.932640048, 16], False, 3, [1, 1, 1, 1, 1, 1, 1, 1, 1, 1, 1, 1, 1, 1, 1, 1, 1, 1, 1], False),
    Part.BSplineCurve([Vector(39.961486, -0.18464, 0), Vector(39.969215, -0.151263, 0), Vector(39.98407, -0.087112, 0), Vector(40.016675, 0.003019, 0), Vector(40.056541, 0.083338, 0), Vector(40.103946, 0.154908, 0), Vector(40.160496, 0.217317, 0), Vector(40.225025, 0.272934, 0), Vector(40.297373, 0.323109, 0), Vector(40.377766, 0.364932, 0), Vector(40.462579, 0.400601, 0), Vector(40.551346, 0.424352, 0), Vector(40.641651, 0.441053, 0), Vector(40.702729, 0.442725, 0), Vector(40.733421, 0.443565, 0)], [4, 1, 1, 1, 1, 1, 1, 1, 1, 1, 1, 1, 4], [0, 1.136247022, 2.183929868, 3.172523383, 4.106158343, 5.02341133, 5.958108904, 6.928429099, 7.938127109, 8.96079061, 9.975095812, 10.982467395, 12], False, 3, [1, 1, 1, 1, 1, 1, 1, 1, 1, 1, 1, 1, 1, 1, 1], False),
    Part.LineSegment(Vector(39.961486, -0.18464, 0), Vector(39.647384, -0.18464, 0)),
    Part.BSplineCurve([Vector(40.715192, 0.80254, 0), Vector(40.680318, 0.801849, 0), Vector(40.611707, 0.80049, 0), Vector(40.511187, 0.786271, 0), Vector(40.414472, 0.765907, 0), Vector(40.322342, 0.735271, 0), Vector(40.233971, 0.696884, 0), Vector(40.150548, 0.648367, 0), Vector(40.069942, 0.593388, 0), Vector(39.99543, 0.528508, 0), Vector(39.926274, 0.457592, 0), Vector(39.864368, 0.380635, 0), Vector(39.809234, 0.298905, 0), Vector(39.761756, 0.212007, 0), Vector(39.721258, 0.120169, 0), Vector(39.689443, 0.023046, 0), Vector(39.663765, -0.078854, 0), Vector(39.652901, -0.149008, 0), Vector(39.647384, -0.18464, 0)], [4, 1, 1, 1, 1, 1, 1, 1, 1, 1, 1, 1, 1, 1, 1, 1, 4], [0, 1.0467383, 2.05933395, 3.04377827, 4.011590433, 4.970194871, 5.932262533, 6.905835911, 7.896367577, 8.894135286, 9.877477877, 10.858688626, 11.851381753, 12.8477658, 13.868841284, 14.917554742, 16], False, 3, [1, 1, 1, 1, 1, 1, 1, 1, 1, 1, 1, 1, 1, 1, 1, 1, 1, 1, 1], False),
    Part.BSplineCurve([Vector(41.935845, -0.430734, 0), Vector(41.93518, -0.402211, 0), Vector(41.933859, -0.345552, 0), Vector(41.92714, -0.261408, 0), Vector(41.914205, -0.179045, 0), Vector(41.896837, -0.098453, 0), Vector(41.874295, -0.019784, 0), Vector(41.847006, 0.057188, 0), Vector(41.81361, 0.131982, 0), Vector(41.776978, 0.205308, 0), Vector(41.735732, 0.275506, 0), Vector(41.689953, 0.341155, 0), Vector(41.641588, 0.40324, 0), Vector(41.589546, 0.461093, 0), Vector(41.533345, 0.514336, 0), Vector(41.473665, 0.563285, 0), Vector(41.410983, 0.608766, 0), Vector(41.344327, 0.648934, 0), Vector(41.275185, 0.685897, 0), Vector(41.202557, 0.716221, 0), Vector(41.128096, 0.743331, 0), Vector(41.050731, 0.764941, 0), Vector(40.970637, 0.781873, 0), Vector(40.887683, 0.793374, 0), Vector(40.802302, 0.80175, 0), Vector(40.744427, 0.802275, 0), Vector(40.715192, 0.80254, 0)], [4, 1, 1, 1, 1, 1, 1, 1, 1, 1, 1, 1, 1, 1, 1, 1, 1, 1, 1, 1, 1, 1, 1, 1, 4], [0, 1.056347294, 2.098418968, 3.122841568, 4.141288669, 5.149314143, 6.15115421, 7.162517403, 8.180376062, 9.185164535, 10.17417709, 11.141909838, 12.097768115, 13.052685741, 14.0056014, 14.954263652, 15.917497458, 16.885230207, 17.854509472, 18.828990115, 19.81800267, 20.826176721, 21.857883937, 22.917946725, 24], False, 3, [1, 1, 1, 1, 1, 1, 1, 1, 1, 1, 1, 1, 1, 1, 1, 1, 1, 1, 1, 1, 1, 1, 1, 1, 1, 1, 1], False),
    Part.BSplineCurve([Vector(40.834383, -1.575666, 0), Vector(40.873467, -1.57482, 0), Vector(40.950315, -1.573156, 0), Vector(41.062754, -1.557184, 0), Vector(41.170087, -1.532045, 0), Vector(41.272089, -1.496924, 0), Vector(41.36895, -1.452014, 0), Vector(41.459777, -1.395914, 0), Vector(41.545935, -1.330381, 0), Vector(41.625878, -1.255036, 0), Vector(41.698402, -1.172114, 0), Vector(41.762168, -1.082957, 0), Vector(41.816331, -0.988429, 0), Vector(41.859892, -0.887628, 0), Vector(41.894676, -0.781669, 0), Vector(41.917828, -0.669437, 0), Vector(41.933245, -0.551988, 0), Vector(41.934967, -0.471684, 0), Vector(41.935845, -0.430734, 0)], [4, 1, 1, 1, 1, 1, 1, 1, 1, 1, 1, 1, 1, 1, 1, 1, 4], [0, 1.052922333, 2.070308379, 3.05430497, 4.020497103, 4.973039431, 5.925935799, 6.892292201, 7.88610001, 8.88166317, 9.857072816, 10.836096531, 11.812156883, 12.81219415, 13.836441305, 14.89672472, 16], False, 3, [1, 1, 1, 1, 1, 1, 1, 1, 1, 1, 1, 1, 1, 1, 1, 1, 1, 1, 1], False),
    Part.BSplineCurve([Vector(40.422123, -1.507657, 0), Vector(40.459179, -1.517887, 0), Vector(40.530969, -1.537707, 0), Vector(40.636929, -1.559712, 0), Vector(40.737521, -1.572978, 0), Vector(40.802797, -1.574789, 0), Vector(40.834383, -1.575666, 0)], [4, 1, 1, 1, 4], [0, 1.100273476, 2.13160584, 3.095893838, 4], False, 3, [1, 1, 1, 1, 1, 1, 1], False),
    Part.LineSegment(Vector(40.422123, -1.507657, 0), Vector(40.610725, -2.42823, 0)),
    Part.LineSegment(Vector(40.610725, -2.42823, 0), Vector(41.80123, -2.42823, 0)),
    Part.LineSegment(Vector(47.006358, 0.712796, 0), Vector(45.390974, -2.787204, 0)),
    Part.LineSegment(Vector(45.390974, -2.787204, 0), Vector(45.346102, -2.787204, 0)),
    Part.LineSegment(Vector(45.346102, -2.787204, 0), Vector(43.685845, 0.712796, 0)),
    Part.LineSegment(Vector(43.685845, 0.712796, 0), Vector(44.028694, 0.712796, 0)),
    Part.LineSegment(Vector(44.028694, 0.712796, 0), Vector(44.560845, -0.408999, 0)),
    Part.LineSegment(Vector(44.560845, -0.408999, 0), Vector(46.147484, -0.408999, 0)),
    Part.LineSegment(Vector(46.147484, -0.408999, 0), Vector(46.664912, 0.712796, 0)),
    Part.LineSegment(Vector(46.664912, 0.712796, 0), Vector(47.006358, 0.712796, 0)),
    Part.LineSegment(Vector(45.365032, -2.105013, 0), Vector(45.982019, -0.767973, 0)),
    Part.LineSegment(Vector(45.982019, -0.767973, 0), Vector(44.731218, -0.767973, 0)),
    Part.LineSegment(Vector(44.731218, -0.767973, 0), Vector(45.365032, -2.105013, 0)),
], False)
sketch4.addConstraint([
    Sketcher.Constraint("Block", 1),
    Sketcher.Constraint("Block", 2),
    Sketcher.Constraint("Block", 3),
    Sketcher.Constraint("Block", 4),
    Sketcher.Constraint("Block", 5),
    Sketcher.Constraint("Block", 6),
    Sketcher.Constraint("Block", 7),
    Sketcher.Constraint("Block", 9),
    Sketcher.Constraint("Block", 10),
    Sketcher.Constraint("Block", 11),
    Sketcher.Constraint("Block", 12),
    Sketcher.Constraint("Block", 13),
    Sketcher.Constraint("Block", 14),
    Sketcher.Constraint("Block", 15),
    Sketcher.Constraint("Block", 16),
    Sketcher.Constraint("Block", 48),
    Sketcher.Constraint("Block", 49),
    Sketcher.Constraint("Block", 50),
    Sketcher.Constraint("Block", 51),
    Sketcher.Constraint("Block", 53),
    Sketcher.Constraint("Block", 54),
    Sketcher.Constraint("Block", 55),
    Sketcher.Constraint("Block", 56),
    Sketcher.Constraint("Coincident", 0, 2, 1, 2),
    Sketcher.Constraint("Coincident", 7, 1, 8, 1),
    Sketcher.Constraint("Coincident", 8, 2, 9, 2),
    Sketcher.Constraint("Coincident", 16, 1, 0, 1),
    Sketcher.Constraint("Coincident", 17, 2, 18, 1),
    Sketcher.Constraint("Coincident", 18, 2, 19, 1),
    Sketcher.Constraint("Coincident", 19, 2, 20, 1),
    Sketcher.Constraint("Coincident", 20, 2, 21, 1),
    Sketcher.Constraint("Coincident", 21, 2, 22, 1),
    Sketcher.Constraint("Coincident", 22, 2, 23, 1),
    Sketcher.Constraint("Coincident", 23, 2, 24, 1),
    Sketcher.Constraint("Coincident", 24, 2, 25, 1),
    Sketcher.Constraint("Coincident", 25, 2, 26, 1),
    Sketcher.Constraint("Coincident", 26, 2, 27, 1),
    Sketcher.Constraint("Coincident", 27, 2, 28, 1),
    Sketcher.Constraint("Coincident", 28, 2, 17, 1),
    Sketcher.Constraint("Coincident", 29, 2, 30, 1),
    Sketcher.Constraint("Coincident", 30, 2, 31, 1),
    Sketcher.Constraint("Coincident", 31, 2, 32, 1),
    Sketcher.Constraint("Coincident", 32, 2, 33, 1),
    Sketcher.Constraint("Coincident", 33, 2, 34, 1),
    Sketcher.Constraint("Coincident", 34, 2, 35, 1),
    Sketcher.Constraint("Coincident", 35, 2, 36, 1),
    Sketcher.Constraint("Coincident", 36, 2, 37, 1),
    Sketcher.Constraint("Coincident", 37, 2, 38, 1),
    Sketcher.Constraint("Coincident", 38, 2, 29, 1),
    Sketcher.Constraint("Coincident", 39, 2, 40, 1),
    Sketcher.Constraint("Coincident", 40, 2, 41, 1),
    Sketcher.Constraint("Coincident", 41, 2, 42, 1),
    Sketcher.Constraint("Coincident", 42, 2, 43, 1),
    Sketcher.Constraint("Coincident", 43, 2, 44, 1),
    Sketcher.Constraint("Coincident", 44, 2, 39, 1),
    Sketcher.Constraint("Coincident", 45, 2, 46, 1),
    Sketcher.Constraint("Coincident", 46, 2, 47, 1),
    Sketcher.Constraint("Coincident", 47, 2, 48, 2),
    Sketcher.Constraint("Coincident", 51, 1, 52, 1),
    Sketcher.Constraint("Coincident", 52, 2, 53, 2),
    Sketcher.Constraint("Coincident", 56, 1, 57, 1),
    Sketcher.Constraint("Coincident", 57, 2, 58, 1),
    Sketcher.Constraint("Coincident", 58, 2, 45, 1),
    Sketcher.Constraint("Coincident", 59, 2, 60, 1),
    Sketcher.Constraint("Coincident", 60, 2, 61, 1),
    Sketcher.Constraint("Coincident", 61, 2, 62, 1),
    Sketcher.Constraint("Coincident", 62, 2, 63, 1),
    Sketcher.Constraint("Coincident", 63, 2, 64, 1),
    Sketcher.Constraint("Coincident", 64, 2, 65, 1),
    Sketcher.Constraint("Coincident", 65, 2, 66, 1),
    Sketcher.Constraint("Coincident", 66, 2, 59, 1),
    Sketcher.Constraint("Coincident", 67, 2, 68, 1),
    Sketcher.Constraint("Coincident", 68, 2, 69, 1),
    Sketcher.Constraint("Coincident", 69, 2, 67, 1),
    Sketcher.Constraint("Horizontal", 17),
    Sketcher.Constraint("Vertical", 18),
    Sketcher.Constraint("Horizontal", 19),
    Sketcher.Constraint("Vertical", 20),
    Sketcher.Constraint("Horizontal", 21),
    Sketcher.Constraint("Vertical", 22),
    Sketcher.Constraint("Horizontal", 23),
    Sketcher.Constraint("Vertical", 24),
    Sketcher.Constraint("Horizontal", 25),
    Sketcher.Constraint("Vertical", 26),
    Sketcher.Constraint("Horizontal", 27),
    Sketcher.Constraint("Vertical", 28),
    Sketcher.Constraint("Vertical", 29),
    Sketcher.Constraint("Horizontal", 30),
    Sketcher.Constraint("Vertical", 31),
    Sketcher.Constraint("Horizontal", 33),
    Sketcher.Constraint("Vertical", 34),
    Sketcher.Constraint("Horizontal", 35),
    Sketcher.Constraint("Vertical", 36),
    Sketcher.Constraint("Horizontal", 38),
    Sketcher.Constraint("Horizontal", 39),
    Sketcher.Constraint("Horizontal", 41),
    Sketcher.Constraint("Vertical", 42),
    Sketcher.Constraint("Horizontal", 43),
    Sketcher.Constraint("Vertical", 44),
    Sketcher.Constraint("Vertical", 45),
    Sketcher.Constraint("Horizontal", 46),
    Sketcher.Constraint("Horizontal", 58),
    Sketcher.Constraint("Horizontal", 60),
    Sketcher.Constraint("Horizontal", 62),
    Sketcher.Constraint("Horizontal", 64),
    Sketcher.Constraint("Horizontal", 66),
    Sketcher.Constraint("Horizontal", 68),
    Sketcher.Constraint("DistanceY", 18, 1, 18, 2, Q("3.5 mm")),
    Sketcher.Constraint("DistanceY", 24, 2, 24, 1, Q("3.5 mm")),
    Sketcher.Constraint("DistanceY", 29, 1, 29, 2, Q("3.5 mm")),
    Sketcher.Constraint("DistanceY", 34, 2, 34, 1, Q("3.5 mm")),
    Sketcher.Constraint("DistanceY", 44, 2, 44, 1, Q("3.5 mm")),
    Sketcher.Constraint("DistanceY", 17, 2, 22, 2, Q("3.5 mm")),
    Sketcher.Constraint("DistanceY", 39, 2, 33, 2, Q("3.5 mm")),
    Sketcher.Constraint("DistanceX", 44, 2, 45, 2, Q("3.5 mm")),
    Sketcher.Constraint("DistanceY", 45, 2, 43, 2, Q("3.5 mm")),
    Sketcher.Constraint("DistanceY", 60, 2, 61, 2, Q("3.5 mm")),
    Sketcher.Constraint("DistanceY", 45, 2, 61, 2, Q("3.5 mm")),
    Sketcher.Constraint("DistanceY", 59, 2, 65, 2, Q("3.5 mm")),
    Sketcher.Constraint("DistanceY", 46, 2, 47, 2, Q("1.75 mm")),
    Sketcher.Constraint("DistanceX", 68, 2, 68, 1, Q("1.250801 mm")),
    Sketcher.Constraint("DistanceX", -1, 1, 19, 2, Q("29.281999 mm")),
    Sketcher.Constraint("DistanceX", -1, 1, 27, 2, Q("29.281999 mm")),
    Sketcher.Constraint("DistanceY", 63, 2, -1, 1, Q("0.408999 mm")),
    Sketcher.Constraint("DistanceX", 61, 2, 63, 2, Q("0.875 mm")),
    Sketcher.Constraint("Distance", 40, Q("0.413598 mm")),
    Sketcher.Constraint("DistanceX", 21, 1, 21, 2, Q("1.794872 mm")),
    Sketcher.Constraint("DistanceX", 27, 2, 27, 1, Q("1.794872 mm")),
    Sketcher.Constraint("DistanceX", 41, 1, 41, 2, Q("0.538462 mm")),
    Sketcher.Constraint("DistanceX", 60, 2, 60, 1, Q("0.044872 mm")),
    Sketcher.Constraint("DistanceX", 62, 1, 62, 2, Q("0.342849 mm")),
    Sketcher.Constraint("DistanceX", 64, 1, 64, 2, Q("1.586639 mm")),
    Sketcher.Constraint("DistanceY", 20, 2, 20, 1, Q("1.705128 mm")),
    Sketcher.Constraint("DistanceY", 31, 2, -1, 1, Q("2.035601 mm")),
    Sketcher.Constraint("DistanceX", -1, 1, 60, 2, Q("45.346102 mm")),
    Sketcher.Constraint("Distance", 47, Q("1.786439 mm")),
    Sketcher.Constraint("Distance", 67, Q("1.472531 mm")),
    Sketcher.Constraint("Distance", 69, Q("1.47966 mm")),
    Sketcher.Constraint("DistanceX", 17, 2, 17, 1, Q("0.314103 mm")),
    Sketcher.Constraint("DistanceX", 23, 1, 23, 2, Q("0.314103 mm")),
    Sketcher.Constraint("DistanceX", 30, 1, 30, 2, Q("0.314103 mm")),
    Sketcher.Constraint("DistanceX", 33, 1, 33, 2, Q("0.071514 mm")),
    Sketcher.Constraint("DistanceX", 35, 2, 35, 1, Q("0.314103 mm")),
    Sketcher.Constraint("DistanceX", 38, 2, 38, 1, Q("0.065905 mm")),
    Sketcher.Constraint("DistanceX", 39, 2, 39, 1, Q("0.647135 mm")),
    Sketcher.Constraint("DistanceX", 43, 1, 43, 2, Q("0.314103 mm")),
    Sketcher.Constraint("DistanceX", 46, 2, 46, 1, Q("1.435897 mm")),
    Sketcher.Constraint("DistanceX", 58, 1, 58, 2, Q("1.190505 mm")),
    Sketcher.Constraint("DistanceX", 66, 1, 66, 2, Q("0.341446 mm")),
    Sketcher.Constraint("DistanceY", 26, 1, 26, 2, Q("1.435897 mm")),
    Sketcher.Constraint("DistanceY", 31, 2, 31, 1, Q("2.748397 mm")),
    Sketcher.Constraint("DistanceY", 36, 1, 36, 2, Q("2.754708 mm")),
    Sketcher.Constraint("DistanceY", 45, 2, 45, 1, Q("0.358974 mm")),
    Sketcher.Constraint("DistanceX", -1, 1, 29, 2, Q("32.288409 mm")),
    Sketcher.Constraint("DistanceX", -1, 1, 65, 2, Q("46.664912 mm")),
    Sketcher.Constraint("DistanceX", -1, 1, 67, 2, Q("45.982019 mm")),
    Sketcher.Constraint("DistanceY", 17, 2, 0, 2, Q("2.82482 mm")),
    Sketcher.Constraint("DistanceX", 30, 2, 32, 2, Q("2.306691 mm")),
    Sketcher.Constraint("DistanceX", 61, 2, 59, 2, Q("1.705128 mm")),
    Sketcher.Constraint("DistanceY", 67, 2, 65, 2, Q("1.480769 mm")),
])
pocket3 = body.newObject("PartDesign::Pocket", "Pocket002")
pocket3.Profile = sketch4
pocket3.Length = 2
pocket3.Reversed = True

doc.recompute()
